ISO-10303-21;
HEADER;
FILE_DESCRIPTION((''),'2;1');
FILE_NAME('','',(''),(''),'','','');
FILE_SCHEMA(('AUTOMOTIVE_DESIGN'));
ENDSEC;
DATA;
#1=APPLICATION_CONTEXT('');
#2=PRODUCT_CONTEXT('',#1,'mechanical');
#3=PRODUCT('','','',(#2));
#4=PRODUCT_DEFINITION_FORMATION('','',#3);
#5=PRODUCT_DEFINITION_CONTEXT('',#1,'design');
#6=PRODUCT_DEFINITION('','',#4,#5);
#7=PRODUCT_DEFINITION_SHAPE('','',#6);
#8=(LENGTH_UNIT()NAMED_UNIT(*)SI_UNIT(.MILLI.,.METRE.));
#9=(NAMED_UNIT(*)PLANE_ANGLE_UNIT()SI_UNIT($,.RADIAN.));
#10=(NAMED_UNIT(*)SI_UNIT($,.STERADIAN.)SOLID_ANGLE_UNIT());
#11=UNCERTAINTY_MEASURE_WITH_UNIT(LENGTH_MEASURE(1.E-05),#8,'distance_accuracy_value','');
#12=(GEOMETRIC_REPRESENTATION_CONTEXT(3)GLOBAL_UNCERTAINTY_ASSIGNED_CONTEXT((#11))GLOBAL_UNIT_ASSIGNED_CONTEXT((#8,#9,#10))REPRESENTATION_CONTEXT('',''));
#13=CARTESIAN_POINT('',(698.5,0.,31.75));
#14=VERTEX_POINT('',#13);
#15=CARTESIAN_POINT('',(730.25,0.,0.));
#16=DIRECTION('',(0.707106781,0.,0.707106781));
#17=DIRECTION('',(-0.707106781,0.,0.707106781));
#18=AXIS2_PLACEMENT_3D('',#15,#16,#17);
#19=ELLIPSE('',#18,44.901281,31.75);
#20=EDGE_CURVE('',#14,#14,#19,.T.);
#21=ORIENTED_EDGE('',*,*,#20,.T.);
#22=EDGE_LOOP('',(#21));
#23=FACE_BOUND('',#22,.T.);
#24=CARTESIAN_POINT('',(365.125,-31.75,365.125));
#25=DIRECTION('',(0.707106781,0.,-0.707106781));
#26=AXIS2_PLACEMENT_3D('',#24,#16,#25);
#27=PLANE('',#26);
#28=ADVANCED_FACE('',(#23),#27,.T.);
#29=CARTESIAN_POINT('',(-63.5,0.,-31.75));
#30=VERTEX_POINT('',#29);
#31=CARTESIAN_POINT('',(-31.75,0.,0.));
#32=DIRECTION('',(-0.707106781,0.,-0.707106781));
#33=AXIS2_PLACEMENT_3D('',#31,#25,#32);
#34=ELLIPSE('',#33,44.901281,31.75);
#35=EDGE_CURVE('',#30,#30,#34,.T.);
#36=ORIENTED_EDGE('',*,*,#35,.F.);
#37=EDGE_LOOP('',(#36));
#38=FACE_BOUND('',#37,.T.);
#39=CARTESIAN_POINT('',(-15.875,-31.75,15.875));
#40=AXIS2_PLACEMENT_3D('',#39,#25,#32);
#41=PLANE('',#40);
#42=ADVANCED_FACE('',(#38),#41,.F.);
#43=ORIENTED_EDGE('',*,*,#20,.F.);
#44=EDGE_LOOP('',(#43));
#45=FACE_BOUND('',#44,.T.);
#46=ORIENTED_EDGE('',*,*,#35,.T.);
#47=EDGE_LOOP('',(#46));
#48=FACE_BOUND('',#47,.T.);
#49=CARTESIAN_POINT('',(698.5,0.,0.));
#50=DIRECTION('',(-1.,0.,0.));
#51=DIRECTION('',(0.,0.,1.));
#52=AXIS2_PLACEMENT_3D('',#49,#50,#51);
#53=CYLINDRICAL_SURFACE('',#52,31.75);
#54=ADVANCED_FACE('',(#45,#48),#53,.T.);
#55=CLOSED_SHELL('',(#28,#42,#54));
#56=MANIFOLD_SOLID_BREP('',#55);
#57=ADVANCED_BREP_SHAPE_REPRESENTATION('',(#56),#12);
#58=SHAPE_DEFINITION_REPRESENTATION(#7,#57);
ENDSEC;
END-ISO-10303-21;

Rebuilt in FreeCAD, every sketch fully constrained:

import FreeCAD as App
import Part
import Sketcher
Q = App.Units.Quantity


def add_polygon(sketch, points):
    """Adds a closed chain of lines whose ends are joined by coincident constraints."""
    first, n = sketch.GeometryCount, len(points)
    for a, b in zip(points, points[1:] + points[:1]):
        sketch.addGeometry(Part.LineSegment(App.Vector(*a, 0), App.Vector(*b, 0)), False)
    for i in range(n):
        sketch.addConstraint(Sketcher.Constraint("Coincident", first + i, 2, first + (i + 1) % n, 1))

doc = App.newDocument("Part")
body = doc.addObject("PartDesign::Body", "Body")

# Sketch on YZ plane
sketch1 = body.newObject("Sketcher::SketchObject", "Sketch")
sketch1.AttachmentSupport = (doc.getObject("YZ_Plane"), [""])
sketch1.MapMode = "FlatFace"
sketch1.addGeometry(Part.Circle(App.Vector(0, 0, 0), App.Vector(0, 0, 1), 31.75), False)
sketch1.addConstraint([
    Sketcher.Constraint("Coincident", 0, 3, -1, 1),
    Sketcher.Constraint("Diameter", 0, Q("2.5 in")),
])
pad1 = body.newObject("PartDesign::Pad", "Pad")
pad1.Profile = sketch1
pad1.Length = Q("27.5 in")

# Sketch on YZ plane
sketch2 = body.newObject("Sketcher::SketchObject", "Sketch001")
sketch2.AttachmentSupport = (doc.getObject("YZ_Plane"), [""])
sketch2.MapMode = "FlatFace"
sketch2.addGeometry(Part.Circle(App.Vector(0, 0, 0), App.Vector(0, 0, 1), 31.75), False)
sketch2.addConstraint([
    Sketcher.Constraint("Coincident", 0, 3, -1, 1),
    Sketcher.Constraint("Diameter", 0, Q("2.5 in")),
])
pad2 = body.newObject("PartDesign::Pad", "Pad001")
pad2.Profile = sketch2
pad2.Length = Q("2.5 in")
pad2.Reversed = True

# Sketch on YZ plane
sketch3 = body.newObject("Sketcher::SketchObject", "Sketch002")
sketch3.AttachmentSupport = (doc.getObject("YZ_Plane"), [""])
sketch3.MapMode = "FlatFace"
sketch3.AttachmentOffset = App.Placement(App.Vector(0, 0, 27.5 * 25.4), App.Rotation())
sketch3.addGeometry(Part.Circle(App.Vector(0, 0, 0), App.Vector(0, 0, 1), 31.75), False)
sketch3.addConstraint([
    Sketcher.Constraint("Coincident", 0, 3, -1, 1),
    Sketcher.Constraint("Diameter", 0, Q("2.5 in")),
])
pad3 = body.newObject("PartDesign::Pad", "Pad002")
pad3.Profile = sketch3
pad3.Length = Q("2.5 in")

# Sketch on XZ plane
sketch4 = body.newObject("Sketcher::SketchObject", "Sketch003")
sketch4.AttachmentSupport = (doc.getObject("XZ_Plane"), [""])
sketch4.MapMode = "FlatFace"
sketch4.AttachmentOffset = App.Placement(App.Vector(0, 0, -1.25 * 25.4), App.Rotation())
add_polygon(sketch4, [(-63.5, 31.75), (0, 31.75), (-63.5, -31.75)])  # lines 0-2
add_polygon(sketch4, [(762, -31.75), (698.5, 31.75), (762, 31.75)])  # lines 3-5
sketch4.addConstraint([
    Sketcher.Constraint("Horizontal", 0),
    Sketcher.Constraint("Vertical", 2),
    Sketcher.Constraint("Horizontal", 4),
    Sketcher.Constraint("Vertical", 5),
    Sketcher.Constraint("PointOnObject", 0, 2, -2),
    Sketcher.Constraint("Perpendicular", 1, 3),
    Sketcher.Constraint("Horizontal", 2, 2, 3, 2),
    Sketcher.Constraint("Horizontal", 1, 2, 5, 2),
    Sketcher.Constraint("Equal", 0, 4),
    Sketcher.Constraint("DistanceX", 0, 1, 0, 2, Q("2.5 in")),
    Sketcher.Constraint("DistanceX", -1, 1, 4, 2, Q("30 in")),
    Sketcher.Constraint("DistanceY", -1, 1, 0, 2, Q("1.25 in")),
])
pocket1 = body.newObject("PartDesign::Pocket", "Pocket")
pocket1.Profile = sketch4
pocket1.Length = Q("2.5 in")
pocket1.Reversed = True

doc.recompute()
